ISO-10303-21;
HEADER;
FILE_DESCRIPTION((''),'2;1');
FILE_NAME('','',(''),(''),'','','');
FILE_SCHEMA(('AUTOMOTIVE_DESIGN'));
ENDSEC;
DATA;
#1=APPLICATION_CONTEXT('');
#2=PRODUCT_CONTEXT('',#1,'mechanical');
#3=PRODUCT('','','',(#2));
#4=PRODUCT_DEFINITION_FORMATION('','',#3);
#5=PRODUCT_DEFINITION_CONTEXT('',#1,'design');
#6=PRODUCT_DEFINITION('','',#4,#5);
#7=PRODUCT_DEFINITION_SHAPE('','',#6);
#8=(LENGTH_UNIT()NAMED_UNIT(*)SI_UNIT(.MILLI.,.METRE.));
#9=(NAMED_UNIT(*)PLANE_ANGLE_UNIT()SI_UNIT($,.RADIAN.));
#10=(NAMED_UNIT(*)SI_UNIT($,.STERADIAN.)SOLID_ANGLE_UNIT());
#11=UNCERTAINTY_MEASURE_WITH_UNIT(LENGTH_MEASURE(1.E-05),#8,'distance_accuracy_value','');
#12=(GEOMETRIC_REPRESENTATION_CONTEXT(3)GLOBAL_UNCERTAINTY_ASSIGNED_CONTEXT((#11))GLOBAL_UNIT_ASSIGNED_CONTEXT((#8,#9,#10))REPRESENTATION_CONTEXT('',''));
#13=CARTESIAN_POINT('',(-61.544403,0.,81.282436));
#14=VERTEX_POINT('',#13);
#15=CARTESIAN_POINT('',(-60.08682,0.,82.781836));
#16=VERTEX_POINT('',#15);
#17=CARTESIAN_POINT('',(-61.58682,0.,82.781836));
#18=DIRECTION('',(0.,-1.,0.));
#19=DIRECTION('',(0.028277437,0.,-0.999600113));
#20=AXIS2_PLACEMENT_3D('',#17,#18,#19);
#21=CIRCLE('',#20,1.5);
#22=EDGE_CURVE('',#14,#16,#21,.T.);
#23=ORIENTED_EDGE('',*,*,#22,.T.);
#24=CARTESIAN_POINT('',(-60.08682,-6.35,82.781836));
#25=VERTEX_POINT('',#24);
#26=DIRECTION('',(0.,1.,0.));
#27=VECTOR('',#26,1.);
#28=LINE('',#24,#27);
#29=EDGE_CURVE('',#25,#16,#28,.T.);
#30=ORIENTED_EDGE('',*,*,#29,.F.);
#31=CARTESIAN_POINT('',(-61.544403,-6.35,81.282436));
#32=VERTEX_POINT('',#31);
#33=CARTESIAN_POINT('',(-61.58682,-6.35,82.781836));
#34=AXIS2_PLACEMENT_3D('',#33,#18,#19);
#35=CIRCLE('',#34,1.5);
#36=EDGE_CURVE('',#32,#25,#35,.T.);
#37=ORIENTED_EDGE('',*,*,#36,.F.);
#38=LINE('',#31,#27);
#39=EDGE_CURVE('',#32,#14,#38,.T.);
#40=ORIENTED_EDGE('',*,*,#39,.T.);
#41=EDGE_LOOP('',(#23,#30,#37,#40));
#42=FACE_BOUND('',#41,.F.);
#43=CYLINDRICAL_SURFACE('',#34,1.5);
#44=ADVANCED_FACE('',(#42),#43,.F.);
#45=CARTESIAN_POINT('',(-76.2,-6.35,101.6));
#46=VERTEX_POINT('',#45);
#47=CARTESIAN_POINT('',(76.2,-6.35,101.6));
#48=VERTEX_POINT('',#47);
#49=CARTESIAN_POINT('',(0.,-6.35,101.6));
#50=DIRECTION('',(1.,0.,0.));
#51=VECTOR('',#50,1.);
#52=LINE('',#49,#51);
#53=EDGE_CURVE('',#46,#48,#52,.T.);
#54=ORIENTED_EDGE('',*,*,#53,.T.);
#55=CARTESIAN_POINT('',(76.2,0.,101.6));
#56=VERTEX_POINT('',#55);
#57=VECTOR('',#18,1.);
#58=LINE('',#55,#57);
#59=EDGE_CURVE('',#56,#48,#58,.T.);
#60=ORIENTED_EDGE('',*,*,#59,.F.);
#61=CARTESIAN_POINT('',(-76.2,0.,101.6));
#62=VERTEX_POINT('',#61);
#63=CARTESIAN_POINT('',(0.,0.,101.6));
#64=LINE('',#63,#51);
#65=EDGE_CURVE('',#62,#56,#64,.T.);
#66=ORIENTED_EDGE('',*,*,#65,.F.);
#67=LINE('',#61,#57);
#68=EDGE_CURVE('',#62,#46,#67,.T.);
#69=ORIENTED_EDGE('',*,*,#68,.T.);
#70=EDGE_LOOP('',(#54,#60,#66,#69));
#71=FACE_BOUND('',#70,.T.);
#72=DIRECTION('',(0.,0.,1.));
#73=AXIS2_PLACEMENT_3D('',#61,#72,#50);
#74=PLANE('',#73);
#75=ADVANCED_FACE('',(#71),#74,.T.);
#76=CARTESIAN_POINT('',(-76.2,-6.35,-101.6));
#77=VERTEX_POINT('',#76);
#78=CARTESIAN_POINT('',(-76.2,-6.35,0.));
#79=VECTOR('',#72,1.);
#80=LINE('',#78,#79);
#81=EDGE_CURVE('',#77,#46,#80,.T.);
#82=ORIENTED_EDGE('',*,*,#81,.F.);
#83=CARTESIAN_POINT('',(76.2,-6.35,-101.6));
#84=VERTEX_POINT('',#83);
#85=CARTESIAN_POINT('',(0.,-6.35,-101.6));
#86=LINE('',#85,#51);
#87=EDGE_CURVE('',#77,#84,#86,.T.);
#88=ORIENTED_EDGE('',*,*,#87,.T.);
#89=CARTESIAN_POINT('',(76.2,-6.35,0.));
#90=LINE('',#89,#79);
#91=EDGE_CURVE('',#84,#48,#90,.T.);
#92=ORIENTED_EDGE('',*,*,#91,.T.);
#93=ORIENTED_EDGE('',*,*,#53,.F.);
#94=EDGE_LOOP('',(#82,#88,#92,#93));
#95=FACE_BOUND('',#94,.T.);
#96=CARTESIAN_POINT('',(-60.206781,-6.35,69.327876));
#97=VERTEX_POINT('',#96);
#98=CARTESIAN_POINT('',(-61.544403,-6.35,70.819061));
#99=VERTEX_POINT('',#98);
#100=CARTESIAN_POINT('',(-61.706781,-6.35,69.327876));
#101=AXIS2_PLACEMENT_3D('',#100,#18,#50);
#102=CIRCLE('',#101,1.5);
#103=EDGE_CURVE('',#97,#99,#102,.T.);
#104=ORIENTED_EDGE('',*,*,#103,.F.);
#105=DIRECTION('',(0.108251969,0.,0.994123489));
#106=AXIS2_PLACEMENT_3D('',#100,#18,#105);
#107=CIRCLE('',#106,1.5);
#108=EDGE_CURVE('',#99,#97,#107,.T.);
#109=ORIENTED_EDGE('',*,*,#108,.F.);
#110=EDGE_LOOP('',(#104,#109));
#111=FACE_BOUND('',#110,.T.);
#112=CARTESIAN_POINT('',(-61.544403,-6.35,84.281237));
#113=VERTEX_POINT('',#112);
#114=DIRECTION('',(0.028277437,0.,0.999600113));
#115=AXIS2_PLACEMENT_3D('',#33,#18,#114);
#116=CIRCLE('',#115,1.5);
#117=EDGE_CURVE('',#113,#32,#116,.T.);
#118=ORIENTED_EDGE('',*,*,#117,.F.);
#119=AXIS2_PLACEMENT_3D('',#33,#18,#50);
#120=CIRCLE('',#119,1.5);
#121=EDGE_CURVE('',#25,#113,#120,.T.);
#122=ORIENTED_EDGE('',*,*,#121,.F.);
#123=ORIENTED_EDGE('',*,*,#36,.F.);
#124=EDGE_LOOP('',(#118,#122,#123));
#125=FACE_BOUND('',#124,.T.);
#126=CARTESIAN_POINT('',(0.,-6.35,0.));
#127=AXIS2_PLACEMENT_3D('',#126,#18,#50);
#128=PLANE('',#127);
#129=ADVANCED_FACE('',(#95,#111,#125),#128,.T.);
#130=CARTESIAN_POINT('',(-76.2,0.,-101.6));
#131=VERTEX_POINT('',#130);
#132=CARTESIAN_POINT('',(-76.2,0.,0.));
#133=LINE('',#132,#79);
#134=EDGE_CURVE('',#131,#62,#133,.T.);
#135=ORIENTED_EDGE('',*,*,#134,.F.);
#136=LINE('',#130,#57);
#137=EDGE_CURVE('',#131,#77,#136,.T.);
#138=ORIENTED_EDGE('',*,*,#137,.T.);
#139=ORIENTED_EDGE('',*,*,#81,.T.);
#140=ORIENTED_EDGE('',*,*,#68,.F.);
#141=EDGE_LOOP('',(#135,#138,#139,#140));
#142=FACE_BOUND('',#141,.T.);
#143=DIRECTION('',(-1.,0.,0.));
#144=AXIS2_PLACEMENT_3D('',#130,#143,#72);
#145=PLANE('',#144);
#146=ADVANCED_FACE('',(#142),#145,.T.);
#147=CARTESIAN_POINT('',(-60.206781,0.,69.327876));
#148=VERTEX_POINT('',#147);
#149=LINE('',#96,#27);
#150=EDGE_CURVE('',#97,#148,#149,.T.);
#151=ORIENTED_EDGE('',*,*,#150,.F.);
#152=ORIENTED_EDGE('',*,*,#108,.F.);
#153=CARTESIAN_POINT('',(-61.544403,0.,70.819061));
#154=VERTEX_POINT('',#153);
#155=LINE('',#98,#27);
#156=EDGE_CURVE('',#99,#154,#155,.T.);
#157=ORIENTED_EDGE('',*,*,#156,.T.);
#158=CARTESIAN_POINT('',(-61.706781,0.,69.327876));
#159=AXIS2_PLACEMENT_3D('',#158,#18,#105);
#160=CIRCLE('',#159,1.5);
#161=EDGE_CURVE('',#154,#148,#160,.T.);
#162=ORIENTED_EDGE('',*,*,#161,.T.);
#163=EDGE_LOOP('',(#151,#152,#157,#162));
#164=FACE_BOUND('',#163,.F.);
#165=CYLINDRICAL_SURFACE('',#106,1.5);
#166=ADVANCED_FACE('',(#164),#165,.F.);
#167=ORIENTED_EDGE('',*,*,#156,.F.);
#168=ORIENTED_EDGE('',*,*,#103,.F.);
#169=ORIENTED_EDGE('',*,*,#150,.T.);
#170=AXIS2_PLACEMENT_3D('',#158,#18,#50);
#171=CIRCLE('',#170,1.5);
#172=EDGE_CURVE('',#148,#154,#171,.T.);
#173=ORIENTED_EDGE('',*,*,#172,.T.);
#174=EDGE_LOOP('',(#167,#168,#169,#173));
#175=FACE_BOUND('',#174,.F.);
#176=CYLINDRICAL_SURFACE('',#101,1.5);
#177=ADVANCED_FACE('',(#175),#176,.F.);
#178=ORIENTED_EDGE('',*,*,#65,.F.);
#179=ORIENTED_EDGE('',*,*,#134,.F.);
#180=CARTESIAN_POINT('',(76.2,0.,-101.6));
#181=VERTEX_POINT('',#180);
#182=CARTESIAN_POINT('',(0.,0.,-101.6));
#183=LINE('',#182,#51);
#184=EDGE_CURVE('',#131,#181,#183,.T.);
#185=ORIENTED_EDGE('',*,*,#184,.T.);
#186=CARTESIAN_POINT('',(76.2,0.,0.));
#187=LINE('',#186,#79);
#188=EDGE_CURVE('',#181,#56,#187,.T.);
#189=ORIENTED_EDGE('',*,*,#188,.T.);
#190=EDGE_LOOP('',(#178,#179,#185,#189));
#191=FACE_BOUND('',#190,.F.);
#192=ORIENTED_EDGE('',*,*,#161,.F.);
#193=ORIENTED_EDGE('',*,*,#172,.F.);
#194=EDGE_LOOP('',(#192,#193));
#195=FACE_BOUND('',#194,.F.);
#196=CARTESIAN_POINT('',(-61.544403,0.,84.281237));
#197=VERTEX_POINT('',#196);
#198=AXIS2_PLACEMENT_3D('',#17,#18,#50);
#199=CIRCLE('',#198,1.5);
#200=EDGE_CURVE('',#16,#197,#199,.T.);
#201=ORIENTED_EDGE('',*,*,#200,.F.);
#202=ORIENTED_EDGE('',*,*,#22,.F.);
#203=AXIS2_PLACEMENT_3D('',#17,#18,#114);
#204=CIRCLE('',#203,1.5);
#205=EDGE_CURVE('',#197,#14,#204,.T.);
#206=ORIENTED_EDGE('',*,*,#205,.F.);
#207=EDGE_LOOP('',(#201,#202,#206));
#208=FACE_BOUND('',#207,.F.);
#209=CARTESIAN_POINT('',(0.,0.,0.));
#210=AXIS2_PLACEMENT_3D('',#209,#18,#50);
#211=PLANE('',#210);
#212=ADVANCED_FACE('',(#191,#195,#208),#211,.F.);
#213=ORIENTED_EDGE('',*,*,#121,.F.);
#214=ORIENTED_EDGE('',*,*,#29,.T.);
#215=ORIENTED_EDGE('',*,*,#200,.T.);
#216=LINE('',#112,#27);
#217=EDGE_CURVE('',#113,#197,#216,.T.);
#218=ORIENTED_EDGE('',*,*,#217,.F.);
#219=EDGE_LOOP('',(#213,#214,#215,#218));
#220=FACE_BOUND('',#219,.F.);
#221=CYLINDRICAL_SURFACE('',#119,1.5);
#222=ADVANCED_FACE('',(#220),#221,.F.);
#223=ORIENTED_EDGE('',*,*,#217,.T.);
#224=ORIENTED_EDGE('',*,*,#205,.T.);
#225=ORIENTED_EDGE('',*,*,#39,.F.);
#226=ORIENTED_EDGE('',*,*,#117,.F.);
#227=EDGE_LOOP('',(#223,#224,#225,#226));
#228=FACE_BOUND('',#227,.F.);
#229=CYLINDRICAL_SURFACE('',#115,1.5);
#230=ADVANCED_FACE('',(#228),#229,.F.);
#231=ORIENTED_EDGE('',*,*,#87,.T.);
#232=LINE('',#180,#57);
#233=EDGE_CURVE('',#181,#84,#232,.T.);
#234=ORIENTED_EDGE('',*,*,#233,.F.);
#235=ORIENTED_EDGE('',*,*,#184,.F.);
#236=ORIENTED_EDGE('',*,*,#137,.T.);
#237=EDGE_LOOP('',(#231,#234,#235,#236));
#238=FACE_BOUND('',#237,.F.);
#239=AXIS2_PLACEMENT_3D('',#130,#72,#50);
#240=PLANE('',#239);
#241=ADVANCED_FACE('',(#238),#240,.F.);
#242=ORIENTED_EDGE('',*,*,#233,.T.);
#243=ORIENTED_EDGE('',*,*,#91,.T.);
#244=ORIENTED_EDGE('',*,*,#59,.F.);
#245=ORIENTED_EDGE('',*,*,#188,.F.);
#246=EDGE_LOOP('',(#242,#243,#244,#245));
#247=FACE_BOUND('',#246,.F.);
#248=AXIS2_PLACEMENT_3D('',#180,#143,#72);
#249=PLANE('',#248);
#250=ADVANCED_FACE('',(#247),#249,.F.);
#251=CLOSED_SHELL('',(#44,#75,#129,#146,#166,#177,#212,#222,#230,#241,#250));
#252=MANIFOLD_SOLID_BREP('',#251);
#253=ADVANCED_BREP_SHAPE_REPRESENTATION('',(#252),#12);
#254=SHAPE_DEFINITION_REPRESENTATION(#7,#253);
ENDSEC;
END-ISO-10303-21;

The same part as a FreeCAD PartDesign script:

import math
import FreeCAD as App
import Part
import Sketcher

V = App.Vector
Q = App.Units.Quantity


def add_polygon(sketch, points):
    """Adds a closed chain of lines whose ends are joined by coincident constraints."""
    first, n = sketch.GeometryCount, len(points)
    for a, b in zip(points, points[1:] + points[:1]):
        sketch.addGeometry(Part.LineSegment(App.Vector(*a, 0), App.Vector(*b, 0)), False)
    for i in range(n):
        sketch.addConstraint(Sketcher.Constraint("Coincident", first + i, 2, first + (i + 1) % n, 1))

doc = App.newDocument("Part")
body = doc.addObject("PartDesign::Body", "Body")

# Sketch on XZ plane
sketch1 = body.newObject("Sketcher::SketchObject", "Sketch")
sketch1.AttachmentSupport = (doc.getObject("XZ_Plane"), [""])
sketch1.MapMode = "FlatFace"
add_polygon(sketch1, [(-76, 102), (-76, -102), (76, -102), (76, 102)])  # lines 0-3
sketch1.addConstraint([
    Sketcher.Constraint("Vertical", 0),
    Sketcher.Constraint("Horizontal", 1),
    Sketcher.Constraint("Vertical", 2),
    Sketcher.Constraint("Horizontal", 3),
    Sketcher.Constraint("Symmetric", 0, 2, 2, 2, -1, 1),
    Sketcher.Constraint("DistanceX", 1, 1, 1, 2, Q("6 in")),
    Sketcher.Constraint("DistanceY", 0, 2, 0, 1, Q("8 in")),
])
pad1 = body.newObject("PartDesign::Pad", "Pad")
pad1.Profile = sketch1
pad1.Length = Q("0.25 in")

# Sketch on XZ plane
sketch2 = body.newObject("Sketcher::SketchObject", "Sketch001")
sketch2.AttachmentSupport = (doc.getObject("XZ_Plane"), [""])
sketch2.MapMode = "FlatFace"
sketch2.AttachmentOffset = App.Placement(V(0, 0, 0.25 * 25.4), App.Rotation())
sketch2.addGeometry([
    Part.ArcOfCircle(Part.Circle(V(-61.6, 82.8, 0), V(0, 0, 1), 1.5), math.radians(88), math.radians(272)),
    Part.ArcOfCircle(Part.Circle(V(-61.6, 82.8, 0), V(0, 0, 1), 1.5), math.radians(-88), math.radians(0)),
    Part.ArcOfCircle(Part.Circle(V(-61.6, 82.8, 0), V(0, 0, 1), 1.5), math.radians(0), math.radians(88)),
], False)
sketch2.addConstraint([
    Sketcher.Constraint("Tangent", 0, 2, 1, 1),
    Sketcher.Constraint("Tangent", 1, 2, 2, 1),
    Sketcher.Constraint("Tangent", 2, 2, 0, 1),
    Sketcher.Constraint("Horizontal", 2, 3, 1, 2),
    Sketcher.Constraint("Vertical", 0, 2, 2, 2),
    Sketcher.Constraint("Radius", 0, 1.5),
    Sketcher.Constraint("DistanceY", 0, 2, 2, 3, 1.4994),
    Sketcher.Constraint("DistanceX", 0, 3, -1, 1, 61.58682),
    Sketcher.Constraint("DistanceY", -1, 1, 0, 3, 82.781836),
])
pocket1 = body.newObject("PartDesign::Pocket", "Pocket")
pocket1.Profile = sketch2
pocket1.Length = 25

# Sketch on XZ plane
sketch3 = body.newObject("Sketcher::SketchObject", "Sketch002")
sketch3.AttachmentSupport = (doc.getObject("XZ_Plane"), [""])
sketch3.MapMode = "FlatFace"
sketch3.AttachmentOffset = App.Placement(V(0, 0, 0.25 * 25.4), App.Rotation())
sketch3.addGeometry([
    Part.ArcOfCircle(Part.Circle(V(-61.7, 69.3, 0), V(0, 0, 1), 1.5), math.radians(0), math.radians(84)),
    Part.ArcOfCircle(Part.Circle(V(-61.7, 69.3, 0), V(0, 0, 1), 1.5), math.radians(84), math.radians(360)),
], False)
sketch3.addConstraint([
    Sketcher.Constraint("Tangent", 0, 1, 1, 2),
    Sketcher.Constraint("Coincident", 1, 1, 0, 2),
    Sketcher.Constraint("Horizontal", 1, 3, 0, 1),
    Sketcher.Constraint("Radius", 0, 1.5),
    Sketcher.Constraint("DistanceX", 0, 3, -1, 1, 61.706781),
    Sketcher.Constraint("DistanceY", -1, 1, 1, 1, 70.819061),
    Sketcher.Constraint("DistanceY", -1, 1, 0, 3, 69.327876),
])
pocket2 = body.newObject("PartDesign::Pocket", "Pocket001")
pocket2.Profile = sketch3
pocket2.Length = 25

doc.recompute()
